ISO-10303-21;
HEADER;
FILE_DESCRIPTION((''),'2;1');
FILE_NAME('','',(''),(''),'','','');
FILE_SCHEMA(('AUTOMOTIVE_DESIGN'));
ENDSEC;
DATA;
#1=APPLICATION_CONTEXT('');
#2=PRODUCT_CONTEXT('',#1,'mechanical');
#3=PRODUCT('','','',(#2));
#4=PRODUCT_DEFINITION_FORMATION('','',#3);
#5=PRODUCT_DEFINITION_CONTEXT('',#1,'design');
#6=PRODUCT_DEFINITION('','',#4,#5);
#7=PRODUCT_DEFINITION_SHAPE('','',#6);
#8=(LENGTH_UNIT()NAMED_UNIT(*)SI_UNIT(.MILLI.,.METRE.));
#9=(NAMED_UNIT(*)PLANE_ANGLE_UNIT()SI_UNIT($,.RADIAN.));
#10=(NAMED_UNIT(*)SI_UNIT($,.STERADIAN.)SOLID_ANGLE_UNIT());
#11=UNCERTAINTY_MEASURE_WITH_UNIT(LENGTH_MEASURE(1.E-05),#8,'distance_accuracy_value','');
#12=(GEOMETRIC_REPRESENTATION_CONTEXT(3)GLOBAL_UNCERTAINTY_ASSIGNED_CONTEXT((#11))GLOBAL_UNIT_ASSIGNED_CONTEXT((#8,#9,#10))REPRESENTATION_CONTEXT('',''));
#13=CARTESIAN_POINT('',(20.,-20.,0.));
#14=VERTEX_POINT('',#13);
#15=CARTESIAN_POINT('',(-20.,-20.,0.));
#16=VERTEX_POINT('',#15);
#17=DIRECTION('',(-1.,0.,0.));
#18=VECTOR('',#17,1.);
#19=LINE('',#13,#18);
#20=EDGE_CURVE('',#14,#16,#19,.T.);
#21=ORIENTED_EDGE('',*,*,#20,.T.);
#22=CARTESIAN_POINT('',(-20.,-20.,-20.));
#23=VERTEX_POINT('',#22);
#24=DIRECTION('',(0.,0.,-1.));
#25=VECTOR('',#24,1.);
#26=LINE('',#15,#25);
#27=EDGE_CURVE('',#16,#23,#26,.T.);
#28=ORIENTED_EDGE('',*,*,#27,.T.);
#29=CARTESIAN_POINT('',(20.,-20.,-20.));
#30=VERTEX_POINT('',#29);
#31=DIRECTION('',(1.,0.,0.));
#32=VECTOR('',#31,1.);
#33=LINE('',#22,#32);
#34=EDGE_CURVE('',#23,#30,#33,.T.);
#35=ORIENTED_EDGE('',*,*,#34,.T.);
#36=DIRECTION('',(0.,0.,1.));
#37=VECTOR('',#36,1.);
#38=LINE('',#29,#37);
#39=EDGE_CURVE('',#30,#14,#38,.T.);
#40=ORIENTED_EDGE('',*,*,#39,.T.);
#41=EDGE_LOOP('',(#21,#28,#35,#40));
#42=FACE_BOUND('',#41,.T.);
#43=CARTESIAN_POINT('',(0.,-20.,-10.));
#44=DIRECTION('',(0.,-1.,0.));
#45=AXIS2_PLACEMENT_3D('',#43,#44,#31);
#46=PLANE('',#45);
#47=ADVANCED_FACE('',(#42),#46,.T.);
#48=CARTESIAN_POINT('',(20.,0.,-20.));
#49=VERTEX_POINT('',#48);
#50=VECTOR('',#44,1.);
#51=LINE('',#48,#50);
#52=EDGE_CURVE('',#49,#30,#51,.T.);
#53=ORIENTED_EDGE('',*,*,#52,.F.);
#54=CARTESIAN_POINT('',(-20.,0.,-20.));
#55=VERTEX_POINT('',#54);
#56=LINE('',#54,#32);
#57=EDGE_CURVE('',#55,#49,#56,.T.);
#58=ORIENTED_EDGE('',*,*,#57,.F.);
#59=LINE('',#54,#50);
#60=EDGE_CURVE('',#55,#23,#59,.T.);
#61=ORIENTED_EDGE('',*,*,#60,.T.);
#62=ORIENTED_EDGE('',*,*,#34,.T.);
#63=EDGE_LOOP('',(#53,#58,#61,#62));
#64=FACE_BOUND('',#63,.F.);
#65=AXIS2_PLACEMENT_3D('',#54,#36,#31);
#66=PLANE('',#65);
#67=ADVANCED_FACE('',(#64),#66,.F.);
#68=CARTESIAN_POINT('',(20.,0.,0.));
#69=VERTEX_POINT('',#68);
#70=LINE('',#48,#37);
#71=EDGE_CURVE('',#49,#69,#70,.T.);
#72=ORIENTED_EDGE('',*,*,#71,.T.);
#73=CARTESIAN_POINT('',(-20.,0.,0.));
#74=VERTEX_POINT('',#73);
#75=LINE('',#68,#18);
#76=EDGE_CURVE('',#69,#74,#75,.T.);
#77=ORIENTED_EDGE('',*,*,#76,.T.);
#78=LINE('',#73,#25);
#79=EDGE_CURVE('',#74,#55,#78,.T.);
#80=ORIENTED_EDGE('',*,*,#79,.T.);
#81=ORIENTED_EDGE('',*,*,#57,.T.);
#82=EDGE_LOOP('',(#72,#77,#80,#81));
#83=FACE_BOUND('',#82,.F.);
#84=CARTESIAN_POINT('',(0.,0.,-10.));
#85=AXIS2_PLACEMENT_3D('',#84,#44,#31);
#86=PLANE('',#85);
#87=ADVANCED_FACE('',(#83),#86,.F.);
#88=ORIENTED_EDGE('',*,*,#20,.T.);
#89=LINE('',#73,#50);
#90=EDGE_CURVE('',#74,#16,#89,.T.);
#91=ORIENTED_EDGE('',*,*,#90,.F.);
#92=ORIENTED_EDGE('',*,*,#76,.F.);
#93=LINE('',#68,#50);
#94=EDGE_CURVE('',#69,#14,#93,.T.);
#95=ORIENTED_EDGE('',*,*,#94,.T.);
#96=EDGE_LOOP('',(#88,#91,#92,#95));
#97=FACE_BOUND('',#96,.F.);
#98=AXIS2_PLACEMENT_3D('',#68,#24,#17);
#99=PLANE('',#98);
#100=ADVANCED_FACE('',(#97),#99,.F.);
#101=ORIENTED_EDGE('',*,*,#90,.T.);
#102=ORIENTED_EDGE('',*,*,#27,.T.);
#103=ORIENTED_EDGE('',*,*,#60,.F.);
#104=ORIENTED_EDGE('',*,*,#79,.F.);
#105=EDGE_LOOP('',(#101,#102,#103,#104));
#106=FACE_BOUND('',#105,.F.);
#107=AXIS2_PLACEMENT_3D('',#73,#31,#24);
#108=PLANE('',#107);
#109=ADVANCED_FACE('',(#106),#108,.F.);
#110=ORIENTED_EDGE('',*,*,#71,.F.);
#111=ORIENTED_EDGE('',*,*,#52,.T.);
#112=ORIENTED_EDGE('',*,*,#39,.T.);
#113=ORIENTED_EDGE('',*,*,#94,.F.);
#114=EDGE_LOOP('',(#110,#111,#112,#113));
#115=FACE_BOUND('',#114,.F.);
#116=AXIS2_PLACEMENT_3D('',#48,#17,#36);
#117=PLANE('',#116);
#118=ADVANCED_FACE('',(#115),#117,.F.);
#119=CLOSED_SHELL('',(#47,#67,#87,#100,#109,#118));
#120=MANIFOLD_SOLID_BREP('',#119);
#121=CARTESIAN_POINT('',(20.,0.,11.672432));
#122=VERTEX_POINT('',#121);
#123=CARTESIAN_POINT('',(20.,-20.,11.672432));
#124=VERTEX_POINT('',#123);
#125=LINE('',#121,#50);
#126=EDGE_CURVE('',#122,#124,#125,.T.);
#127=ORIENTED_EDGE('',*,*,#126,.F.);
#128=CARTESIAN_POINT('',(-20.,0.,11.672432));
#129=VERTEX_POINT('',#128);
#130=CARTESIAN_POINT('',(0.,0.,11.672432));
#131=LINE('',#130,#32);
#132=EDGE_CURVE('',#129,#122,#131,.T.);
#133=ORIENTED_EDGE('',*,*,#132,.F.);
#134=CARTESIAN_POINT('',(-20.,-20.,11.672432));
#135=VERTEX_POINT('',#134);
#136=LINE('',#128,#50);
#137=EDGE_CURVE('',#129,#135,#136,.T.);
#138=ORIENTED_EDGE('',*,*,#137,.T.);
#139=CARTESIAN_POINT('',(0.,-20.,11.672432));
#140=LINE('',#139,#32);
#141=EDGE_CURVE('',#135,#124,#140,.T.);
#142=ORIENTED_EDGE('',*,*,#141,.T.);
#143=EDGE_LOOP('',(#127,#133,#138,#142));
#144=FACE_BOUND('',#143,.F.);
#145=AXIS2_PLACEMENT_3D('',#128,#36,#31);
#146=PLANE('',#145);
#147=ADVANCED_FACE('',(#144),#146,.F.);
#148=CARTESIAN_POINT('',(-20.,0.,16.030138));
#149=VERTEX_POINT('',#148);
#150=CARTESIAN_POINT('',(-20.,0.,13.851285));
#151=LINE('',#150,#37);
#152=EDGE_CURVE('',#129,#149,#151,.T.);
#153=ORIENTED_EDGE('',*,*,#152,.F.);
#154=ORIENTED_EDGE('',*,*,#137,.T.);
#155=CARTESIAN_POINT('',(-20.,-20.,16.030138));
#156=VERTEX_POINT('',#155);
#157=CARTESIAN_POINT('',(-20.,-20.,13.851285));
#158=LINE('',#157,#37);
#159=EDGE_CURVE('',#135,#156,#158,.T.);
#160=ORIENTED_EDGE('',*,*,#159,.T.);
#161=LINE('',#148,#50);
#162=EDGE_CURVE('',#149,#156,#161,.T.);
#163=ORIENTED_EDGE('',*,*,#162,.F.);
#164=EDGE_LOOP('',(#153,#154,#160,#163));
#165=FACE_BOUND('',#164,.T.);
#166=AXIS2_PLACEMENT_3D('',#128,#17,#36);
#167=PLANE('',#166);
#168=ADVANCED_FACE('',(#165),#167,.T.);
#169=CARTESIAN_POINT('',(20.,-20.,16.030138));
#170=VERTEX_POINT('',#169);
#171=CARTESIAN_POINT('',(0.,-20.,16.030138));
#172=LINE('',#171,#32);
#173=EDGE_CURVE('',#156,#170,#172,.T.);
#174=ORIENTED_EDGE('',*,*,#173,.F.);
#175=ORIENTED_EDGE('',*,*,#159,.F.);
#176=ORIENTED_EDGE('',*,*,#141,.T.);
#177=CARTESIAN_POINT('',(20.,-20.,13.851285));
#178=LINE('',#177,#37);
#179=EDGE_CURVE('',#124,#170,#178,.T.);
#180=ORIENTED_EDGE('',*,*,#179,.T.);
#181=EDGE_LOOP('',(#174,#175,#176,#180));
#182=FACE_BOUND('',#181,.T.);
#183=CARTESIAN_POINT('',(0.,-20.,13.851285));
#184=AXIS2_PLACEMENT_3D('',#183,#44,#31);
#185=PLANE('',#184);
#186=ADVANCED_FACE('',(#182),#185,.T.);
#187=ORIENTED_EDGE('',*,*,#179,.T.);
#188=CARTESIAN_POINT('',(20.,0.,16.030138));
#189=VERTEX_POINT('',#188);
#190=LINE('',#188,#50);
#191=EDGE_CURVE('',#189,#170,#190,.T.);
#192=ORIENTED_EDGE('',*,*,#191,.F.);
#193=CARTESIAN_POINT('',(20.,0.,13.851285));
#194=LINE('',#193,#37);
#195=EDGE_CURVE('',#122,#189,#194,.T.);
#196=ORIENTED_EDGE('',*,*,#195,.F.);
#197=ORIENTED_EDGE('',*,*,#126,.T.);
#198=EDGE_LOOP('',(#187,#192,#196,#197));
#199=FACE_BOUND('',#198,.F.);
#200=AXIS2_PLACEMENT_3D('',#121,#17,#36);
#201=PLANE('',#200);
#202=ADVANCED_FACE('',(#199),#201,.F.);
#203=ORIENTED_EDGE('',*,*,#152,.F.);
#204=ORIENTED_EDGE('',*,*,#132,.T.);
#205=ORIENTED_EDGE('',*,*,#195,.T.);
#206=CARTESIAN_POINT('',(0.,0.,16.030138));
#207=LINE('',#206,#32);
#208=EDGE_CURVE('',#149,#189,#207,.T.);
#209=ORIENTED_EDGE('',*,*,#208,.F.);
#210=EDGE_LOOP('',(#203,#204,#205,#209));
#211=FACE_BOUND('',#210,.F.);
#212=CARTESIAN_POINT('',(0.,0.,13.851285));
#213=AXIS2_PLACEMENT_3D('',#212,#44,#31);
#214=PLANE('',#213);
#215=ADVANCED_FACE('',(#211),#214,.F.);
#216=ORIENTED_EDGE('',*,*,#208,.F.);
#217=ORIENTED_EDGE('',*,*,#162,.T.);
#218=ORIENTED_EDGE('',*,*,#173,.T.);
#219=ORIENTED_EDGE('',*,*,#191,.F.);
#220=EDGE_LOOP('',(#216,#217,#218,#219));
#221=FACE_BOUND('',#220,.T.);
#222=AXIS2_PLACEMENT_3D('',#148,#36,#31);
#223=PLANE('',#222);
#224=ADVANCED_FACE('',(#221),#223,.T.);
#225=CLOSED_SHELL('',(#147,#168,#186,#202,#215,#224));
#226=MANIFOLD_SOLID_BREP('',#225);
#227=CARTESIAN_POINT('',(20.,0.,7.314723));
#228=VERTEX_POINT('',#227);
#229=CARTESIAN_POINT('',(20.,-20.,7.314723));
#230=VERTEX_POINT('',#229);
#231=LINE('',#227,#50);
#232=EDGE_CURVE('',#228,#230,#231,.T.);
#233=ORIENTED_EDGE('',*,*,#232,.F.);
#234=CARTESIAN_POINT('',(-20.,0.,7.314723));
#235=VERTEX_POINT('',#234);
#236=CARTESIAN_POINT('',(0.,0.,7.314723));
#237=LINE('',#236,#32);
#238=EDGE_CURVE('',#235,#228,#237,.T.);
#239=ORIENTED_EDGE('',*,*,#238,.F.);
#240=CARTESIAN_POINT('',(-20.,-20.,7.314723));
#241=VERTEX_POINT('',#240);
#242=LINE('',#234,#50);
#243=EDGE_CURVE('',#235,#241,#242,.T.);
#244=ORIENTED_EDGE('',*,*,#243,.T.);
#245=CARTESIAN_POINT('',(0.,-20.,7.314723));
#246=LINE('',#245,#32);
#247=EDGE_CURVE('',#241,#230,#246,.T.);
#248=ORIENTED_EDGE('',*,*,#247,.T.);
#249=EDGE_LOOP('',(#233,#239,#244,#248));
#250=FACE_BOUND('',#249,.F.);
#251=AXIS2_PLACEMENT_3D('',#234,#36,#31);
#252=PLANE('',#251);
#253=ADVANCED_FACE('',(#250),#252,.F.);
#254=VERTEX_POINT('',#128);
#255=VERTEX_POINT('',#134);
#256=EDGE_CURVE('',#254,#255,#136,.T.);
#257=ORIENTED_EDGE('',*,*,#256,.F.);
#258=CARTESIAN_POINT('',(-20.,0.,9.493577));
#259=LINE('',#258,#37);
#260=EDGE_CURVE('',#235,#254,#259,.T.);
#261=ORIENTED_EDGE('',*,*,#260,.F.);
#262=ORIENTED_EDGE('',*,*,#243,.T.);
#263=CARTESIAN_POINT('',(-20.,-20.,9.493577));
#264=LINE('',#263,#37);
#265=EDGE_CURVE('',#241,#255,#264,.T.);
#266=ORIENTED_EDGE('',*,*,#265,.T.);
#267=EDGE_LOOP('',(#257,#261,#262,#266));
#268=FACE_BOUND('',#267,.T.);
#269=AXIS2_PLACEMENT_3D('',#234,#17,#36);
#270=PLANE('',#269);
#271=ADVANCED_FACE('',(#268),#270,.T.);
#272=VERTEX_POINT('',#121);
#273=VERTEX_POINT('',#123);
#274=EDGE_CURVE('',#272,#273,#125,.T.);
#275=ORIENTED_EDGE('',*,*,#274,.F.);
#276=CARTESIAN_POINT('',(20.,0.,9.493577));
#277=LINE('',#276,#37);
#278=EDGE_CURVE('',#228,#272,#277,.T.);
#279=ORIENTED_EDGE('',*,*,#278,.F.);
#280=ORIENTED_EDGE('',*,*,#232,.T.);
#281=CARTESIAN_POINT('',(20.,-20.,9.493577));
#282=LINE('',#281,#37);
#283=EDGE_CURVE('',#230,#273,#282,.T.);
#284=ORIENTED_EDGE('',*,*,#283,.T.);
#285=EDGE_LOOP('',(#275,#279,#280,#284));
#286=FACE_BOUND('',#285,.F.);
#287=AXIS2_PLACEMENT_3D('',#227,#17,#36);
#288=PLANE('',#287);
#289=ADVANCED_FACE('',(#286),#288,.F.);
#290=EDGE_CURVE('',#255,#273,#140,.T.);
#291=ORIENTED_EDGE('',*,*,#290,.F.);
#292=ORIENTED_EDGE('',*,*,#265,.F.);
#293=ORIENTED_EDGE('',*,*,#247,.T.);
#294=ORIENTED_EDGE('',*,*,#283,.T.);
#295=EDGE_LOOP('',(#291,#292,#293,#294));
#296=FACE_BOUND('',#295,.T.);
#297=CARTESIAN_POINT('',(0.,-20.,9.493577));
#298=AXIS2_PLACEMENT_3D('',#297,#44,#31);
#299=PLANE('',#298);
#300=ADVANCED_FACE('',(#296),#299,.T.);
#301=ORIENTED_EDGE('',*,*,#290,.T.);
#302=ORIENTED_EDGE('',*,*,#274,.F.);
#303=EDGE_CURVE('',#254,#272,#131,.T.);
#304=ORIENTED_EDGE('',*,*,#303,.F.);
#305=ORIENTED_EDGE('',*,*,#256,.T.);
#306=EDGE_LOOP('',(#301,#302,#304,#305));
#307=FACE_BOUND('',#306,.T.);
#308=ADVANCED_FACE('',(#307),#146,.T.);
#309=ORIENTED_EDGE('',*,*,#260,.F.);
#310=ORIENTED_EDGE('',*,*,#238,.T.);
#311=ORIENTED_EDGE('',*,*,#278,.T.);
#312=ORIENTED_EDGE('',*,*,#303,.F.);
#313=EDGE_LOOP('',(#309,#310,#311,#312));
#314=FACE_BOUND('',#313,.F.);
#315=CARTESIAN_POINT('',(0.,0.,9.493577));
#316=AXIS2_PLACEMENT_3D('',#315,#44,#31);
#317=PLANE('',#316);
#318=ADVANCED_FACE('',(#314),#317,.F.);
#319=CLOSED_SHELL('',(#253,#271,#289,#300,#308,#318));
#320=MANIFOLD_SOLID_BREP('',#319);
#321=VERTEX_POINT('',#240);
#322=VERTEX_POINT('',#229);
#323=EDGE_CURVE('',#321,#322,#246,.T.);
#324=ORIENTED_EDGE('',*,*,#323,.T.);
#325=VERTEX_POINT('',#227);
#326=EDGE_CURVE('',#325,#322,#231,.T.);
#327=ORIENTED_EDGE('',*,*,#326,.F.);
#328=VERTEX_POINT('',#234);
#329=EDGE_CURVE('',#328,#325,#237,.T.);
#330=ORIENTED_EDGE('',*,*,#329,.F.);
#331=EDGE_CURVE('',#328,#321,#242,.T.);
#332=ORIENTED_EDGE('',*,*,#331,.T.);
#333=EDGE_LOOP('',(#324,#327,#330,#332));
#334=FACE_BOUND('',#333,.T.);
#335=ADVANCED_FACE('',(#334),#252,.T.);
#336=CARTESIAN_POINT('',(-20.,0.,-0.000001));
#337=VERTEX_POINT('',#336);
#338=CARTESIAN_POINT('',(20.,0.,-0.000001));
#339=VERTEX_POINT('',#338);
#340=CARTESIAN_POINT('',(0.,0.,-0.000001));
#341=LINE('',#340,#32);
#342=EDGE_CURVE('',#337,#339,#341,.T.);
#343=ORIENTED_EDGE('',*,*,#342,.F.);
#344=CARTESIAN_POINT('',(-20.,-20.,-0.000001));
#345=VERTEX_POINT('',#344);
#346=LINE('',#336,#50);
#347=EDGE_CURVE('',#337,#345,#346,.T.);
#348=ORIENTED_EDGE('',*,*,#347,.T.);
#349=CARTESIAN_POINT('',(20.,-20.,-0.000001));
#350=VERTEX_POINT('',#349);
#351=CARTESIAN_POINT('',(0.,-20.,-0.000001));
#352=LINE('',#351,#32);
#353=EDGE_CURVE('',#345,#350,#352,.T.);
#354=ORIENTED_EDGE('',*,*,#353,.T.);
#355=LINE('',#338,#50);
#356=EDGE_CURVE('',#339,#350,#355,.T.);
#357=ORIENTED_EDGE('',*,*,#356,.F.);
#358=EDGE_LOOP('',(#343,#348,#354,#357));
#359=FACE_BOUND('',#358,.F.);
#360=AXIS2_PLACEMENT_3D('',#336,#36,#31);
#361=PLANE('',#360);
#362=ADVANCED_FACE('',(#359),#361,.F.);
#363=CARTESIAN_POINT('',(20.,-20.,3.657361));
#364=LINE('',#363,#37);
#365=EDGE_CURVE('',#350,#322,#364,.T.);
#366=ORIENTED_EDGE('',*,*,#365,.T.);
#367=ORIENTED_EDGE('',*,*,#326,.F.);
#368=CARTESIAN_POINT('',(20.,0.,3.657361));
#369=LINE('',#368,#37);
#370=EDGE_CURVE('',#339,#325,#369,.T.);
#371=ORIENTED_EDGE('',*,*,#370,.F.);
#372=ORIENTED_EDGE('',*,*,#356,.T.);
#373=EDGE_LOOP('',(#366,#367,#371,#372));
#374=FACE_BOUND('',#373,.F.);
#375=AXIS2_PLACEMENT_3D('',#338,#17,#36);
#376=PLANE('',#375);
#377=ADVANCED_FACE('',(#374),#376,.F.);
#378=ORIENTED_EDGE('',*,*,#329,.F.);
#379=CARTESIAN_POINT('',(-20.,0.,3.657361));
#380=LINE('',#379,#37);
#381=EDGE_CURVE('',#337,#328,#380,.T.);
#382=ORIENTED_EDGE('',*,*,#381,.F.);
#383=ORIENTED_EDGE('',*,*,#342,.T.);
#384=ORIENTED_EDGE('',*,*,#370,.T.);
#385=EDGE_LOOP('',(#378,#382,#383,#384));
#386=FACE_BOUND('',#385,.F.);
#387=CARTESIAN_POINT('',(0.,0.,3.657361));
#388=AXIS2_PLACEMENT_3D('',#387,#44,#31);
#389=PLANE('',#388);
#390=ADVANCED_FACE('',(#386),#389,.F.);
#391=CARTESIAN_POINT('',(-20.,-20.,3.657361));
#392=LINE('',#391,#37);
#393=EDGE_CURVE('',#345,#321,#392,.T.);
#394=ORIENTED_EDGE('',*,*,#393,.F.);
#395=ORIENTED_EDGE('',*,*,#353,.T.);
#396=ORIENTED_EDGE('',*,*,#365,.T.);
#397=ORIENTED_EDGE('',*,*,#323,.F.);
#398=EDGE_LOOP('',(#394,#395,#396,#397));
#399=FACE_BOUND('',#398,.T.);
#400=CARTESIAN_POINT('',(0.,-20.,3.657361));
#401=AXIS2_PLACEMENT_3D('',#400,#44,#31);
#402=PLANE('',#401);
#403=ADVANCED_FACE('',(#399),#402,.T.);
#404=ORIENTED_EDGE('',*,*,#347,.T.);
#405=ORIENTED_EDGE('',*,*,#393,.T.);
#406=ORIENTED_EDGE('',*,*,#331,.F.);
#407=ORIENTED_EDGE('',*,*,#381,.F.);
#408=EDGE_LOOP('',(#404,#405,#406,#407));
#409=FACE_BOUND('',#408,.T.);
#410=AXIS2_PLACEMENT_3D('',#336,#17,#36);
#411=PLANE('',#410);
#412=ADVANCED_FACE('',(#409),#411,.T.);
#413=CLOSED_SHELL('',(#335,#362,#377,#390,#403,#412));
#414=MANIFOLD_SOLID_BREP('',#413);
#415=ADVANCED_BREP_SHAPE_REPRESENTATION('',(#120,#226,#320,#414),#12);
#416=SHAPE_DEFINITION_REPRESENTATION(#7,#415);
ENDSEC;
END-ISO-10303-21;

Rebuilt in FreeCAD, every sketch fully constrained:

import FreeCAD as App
import Part
import Sketcher
from FreeCAD import Vector
Q = App.Units.Quantity

doc = App.newDocument("Part")
body = doc.addObject("PartDesign::Body", "Body")

sketch1 = body.newObject("Sketcher::SketchObject", "Sketch")
sketch1.AttachmentSupport = (doc.getObject("XZ_Plane"), [""])
sketch1.MapMode = "FlatFace"
sketch1.addGeometry([
    Part.LineSegment(Vector(-20, -20, 0), Vector(20, -20, 0)),
    Part.LineSegment(Vector(20, -20, 0), Vector(20, 0, 0)),
    Part.LineSegment(Vector(20, 0, 0), Vector(-20, 0, 0)),
    Part.LineSegment(Vector(-20, 0, 0), Vector(-20, -20, 0)),
], False)
sketch1.addConstraint([
    Sketcher.Constraint("Coincident", 0, 2, 1, 1),
    Sketcher.Constraint("Coincident", 1, 2, 2, 1),
    Sketcher.Constraint("Coincident", 2, 2, 3, 1),
    Sketcher.Constraint("Coincident", 3, 2, 0, 1),
    Sketcher.Constraint("Horizontal", 0),
    Sketcher.Constraint("Vertical", 1),
    Sketcher.Constraint("Horizontal", 2),
    Sketcher.Constraint("Vertical", 3),
    Sketcher.Constraint("Symmetric", 1, 2, 2, 2, -1, 1),
    Sketcher.Constraint("DistanceX", 0, 1, 0, 2, Q("40 mm")),
    Sketcher.Constraint("DistanceY", 1, 1, 1, 2, Q("20 mm")),
])
pad1 = body.newObject("PartDesign::Pad", "Pad")
pad1.Profile = sketch1
pad1.Length = 20
body2 = doc.addObject("PartDesign::Body", "Body001")

sketch2 = body2.newObject("Sketcher::SketchObject", "Sketch001")
sketch2.AttachmentSupport = (doc.getObject("XZ_Plane001"), [""])
sketch2.MapMode = "FlatFace"
sketch2.addGeometry([
    Part.LineSegment(Vector(-20, 7, 0), Vector(-20, 0, 0)),
    Part.LineSegment(Vector(-20, 0, 0), Vector(20, 0, 0)),
    Part.LineSegment(Vector(20, 0, 0), Vector(20, 7, 0)),
    Part.LineSegment(Vector(20, 7, 0), Vector(-20, 7, 0)),
], False)
sketch2.addConstraint([
    Sketcher.Constraint("Coincident", 0, 2, 1, 1),
    Sketcher.Constraint("Coincident", 1, 2, 2, 1),
    Sketcher.Constraint("Coincident", 2, 2, 3, 1),
    Sketcher.Constraint("Coincident", 3, 2, 0, 1),
    Sketcher.Constraint("Vertical", 0),
    Sketcher.Constraint("Horizontal", 1),
    Sketcher.Constraint("Vertical", 2),
    Sketcher.Constraint("Horizontal", 3),
    Sketcher.Constraint("Symmetric", 0, 2, 1, 2, -1, 1),
    Sketcher.Constraint("DistanceX", 1, 1, 1, 2, Q("40 mm")),
    Sketcher.Constraint("DistanceY", 0, 2, 0, 1, Q("7.314723 mm")),
])
pad2 = body2.newObject("PartDesign::Pad", "Pad001")
pad2.Profile = sketch2
pad2.Length = 20
body3 = doc.addObject("PartDesign::Body", "Body002")

sketch3 = body3.newObject("Sketcher::SketchObject", "Sketch002")
sketch3.AttachmentSupport = (doc.getObject("XZ_Plane002"), [""])
sketch3.MapMode = "FlatFace"
sketch3.addGeometry([
    Part.LineSegment(Vector(-20, 11.7, 0), Vector(-20, 7.3, 0)),
    Part.LineSegment(Vector(-20, 7.3, 0), Vector(20, 7.3, 0)),
    Part.LineSegment(Vector(20, 7.3, 0), Vector(20, 11.7, 0)),
    Part.LineSegment(Vector(20, 11.7, 0), Vector(-20, 11.7, 0)),
], False)
sketch3.addConstraint([
    Sketcher.Constraint("Coincident", 0, 2, 1, 1),
    Sketcher.Constraint("Coincident", 1, 2, 2, 1),
    Sketcher.Constraint("Coincident", 2, 2, 3, 1),
    Sketcher.Constraint("Coincident", 3, 2, 0, 1),
    Sketcher.Constraint("Vertical", 0),
    Sketcher.Constraint("Horizontal", 1),
    Sketcher.Constraint("Vertical", 2),
    Sketcher.Constraint("Horizontal", 3),
    Sketcher.Constraint("DistanceX", 1, 1, 1, 2, Q("40 mm")),
    Sketcher.Constraint("DistanceX", 0, 2, -1, 1, Q("20 mm")),
    Sketcher.Constraint("DistanceY", 0, 2, 0, 1, Q("4.357709 mm")),
    Sketcher.Constraint("DistanceY", -1, 1, 2, 2, Q("11.672432 mm")),
])
pad3 = body3.newObject("PartDesign::Pad", "Pad002")
pad3.Profile = sketch3
pad3.Length = 20
body4 = doc.addObject("PartDesign::Body", "Body003")

sketch4 = body4.newObject("Sketcher::SketchObject", "Sketch003")
sketch4.AttachmentSupport = (doc.getObject("XZ_Plane003"), [""])
sketch4.MapMode = "FlatFace"
sketch4.addGeometry([
    Part.LineSegment(Vector(-20, 16, 0), Vector(-20, 11.7, 0)),
    Part.LineSegment(Vector(-20, 11.7, 0), Vector(20, 11.7, 0)),
    Part.LineSegment(Vector(20, 11.7, 0), Vector(20, 16, 0)),
    Part.LineSegment(Vector(20, 16, 0), Vector(-20, 16, 0)),
], False)
sketch4.addConstraint([
    Sketcher.Constraint("Coincident", 0, 2, 1, 1),
    Sketcher.Constraint("Coincident", 1, 2, 2, 1),
    Sketcher.Constraint("Coincident", 2, 2, 3, 1),
    Sketcher.Constraint("Coincident", 3, 2, 0, 1),
    Sketcher.Constraint("Vertical", 0),
    Sketcher.Constraint("Horizontal", 1),
    Sketcher.Constraint("Vertical", 2),
    Sketcher.Constraint("Horizontal", 3),
    Sketcher.Constraint("DistanceX", 1, 1, 1, 2, Q("40 mm")),
    Sketcher.Constraint("DistanceX", 0, 2, -1, 1, Q("20 mm")),
    Sketcher.Constraint("DistanceY", 0, 2, 0, 1, Q("4.357706 mm")),
    Sketcher.Constraint("DistanceY", -1, 1, 2, 2, Q("16.030138 mm")),
])
pad4 = body4.newObject("PartDesign::Pad", "Pad003")
pad4.Profile = sketch4
pad4.Length = 20

doc.recompute()
